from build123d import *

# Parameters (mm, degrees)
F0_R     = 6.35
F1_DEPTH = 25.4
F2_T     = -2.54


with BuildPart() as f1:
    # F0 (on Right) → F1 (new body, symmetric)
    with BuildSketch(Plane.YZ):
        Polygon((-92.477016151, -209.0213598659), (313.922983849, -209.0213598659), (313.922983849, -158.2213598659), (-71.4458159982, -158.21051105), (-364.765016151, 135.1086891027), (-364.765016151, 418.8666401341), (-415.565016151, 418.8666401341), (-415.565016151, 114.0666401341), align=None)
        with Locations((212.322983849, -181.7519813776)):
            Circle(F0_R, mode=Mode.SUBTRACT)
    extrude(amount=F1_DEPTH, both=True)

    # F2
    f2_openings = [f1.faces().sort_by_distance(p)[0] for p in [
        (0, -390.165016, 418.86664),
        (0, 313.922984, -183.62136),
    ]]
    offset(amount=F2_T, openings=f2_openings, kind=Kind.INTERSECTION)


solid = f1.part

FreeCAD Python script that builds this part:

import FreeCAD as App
import Part
import Sketcher
from FreeCAD import Vector
Q = App.Units.Quantity


def faces_at(feature, points):
    """Names of the faces that lie closest to the given points."""
    faces = feature.Shape.Faces
    near = lambda p: min(range(len(faces)), key=lambda i: faces[i].distToShape(Part.Vertex(*p))[0])
    return sorted({f"Face{near(p) + 1}" for p in points})

doc = App.newDocument("Part")
body = doc.addObject("PartDesign::Body", "Body")

sketch1 = body.newObject("Sketcher::SketchObject", "Sketch")
sketch1.AttachmentSupport = (doc.getObject("YZ_Plane"), [""])
sketch1.MapMode = "FlatFace"
sketch1.addGeometry(Part.LineSegment(Vector(-92, -209, 0), Vector(314, -209, 0)), False)
sketch1.addGeometry(Part.LineSegment(Vector(314, -209, 0), Vector(314, -158, 0)), False)
sketch1.addGeometry(Part.LineSegment(Vector(314, -158, 0), Vector(-71, -158, 0)), False)
sketch1.addGeometry(Part.LineSegment(Vector(-71, -158, 0), Vector(-365, 135, 0)), False)
sketch1.addGeometry(Part.LineSegment(Vector(-365, 135, 0), Vector(-365, 419, 0)), False)
sketch1.addGeometry(Part.LineSegment(Vector(-365, 419, 0), Vector(-416, 419, 0)), False)
sketch1.addGeometry(Part.LineSegment(Vector(-416, 419, 0), Vector(-416, 114, 0)), False)
sketch1.addGeometry(Part.LineSegment(Vector(-416, 114, 0), Vector(-92, -209, 0)), False)
sketch1.addGeometry(Part.Circle(Vector(212, -182, 0), Vector(0, 0, 1), 6), False)
sketch1.addConstraint(Sketcher.Constraint("Coincident", 0, 2, 1, 1))
sketch1.addConstraint(Sketcher.Constraint("Coincident", 1, 2, 2, 1))
sketch1.addConstraint(Sketcher.Constraint("Coincident", 2, 2, 3, 1))
sketch1.addConstraint(Sketcher.Constraint("Coincident", 3, 2, 4, 1))
sketch1.addConstraint(Sketcher.Constraint("Coincident", 4, 2, 5, 1))
sketch1.addConstraint(Sketcher.Constraint("Coincident", 5, 2, 6, 1))
sketch1.addConstraint(Sketcher.Constraint("Coincident", 6, 2, 7, 1))
sketch1.addConstraint(Sketcher.Constraint("Coincident", 7, 2, 0, 1))
sketch1.addConstraint(Sketcher.Constraint("Horizontal", 0))
sketch1.addConstraint(Sketcher.Constraint("Vertical", 1))
sketch1.addConstraint(Sketcher.Constraint("Vertical", 4))
sketch1.addConstraint(Sketcher.Constraint("Horizontal", 5))
sketch1.addConstraint(Sketcher.Constraint("Vertical", 6))
sketch1.addConstraint(Sketcher.Constraint("Parallel", 3, 7))
sketch1.addConstraint(Sketcher.Constraint("Equal", 5, 1))
sketch1.addConstraint(Sketcher.Constraint("Diameter", 8, Q("0.5 in")))
sketch1.addConstraint(Sketcher.Constraint("DistanceX", 0, 1, 0, 2, Q("16 in")))
sketch1.addConstraint(Sketcher.Constraint("DistanceX", 5, 2, 5, 1, Q("2 in")))
sketch1.addConstraint(Sketcher.Constraint("DistanceY", 6, 2, 6, 1, Q("12 in")))
sketch1.addConstraint(Sketcher.Constraint("Angle", 3, Q("135 deg")))
sketch1.addConstraint(Sketcher.Constraint("DistanceX", 8, 3, 0, 2, Q("4 in")))
sketch1.addConstraint(Sketcher.Constraint("DistanceX", 3, 2, 8, 3, Q("22.72 in")))
sketch1.addConstraint(Sketcher.Constraint("Distance", 2, Q("15.172 in")))
sketch1.addConstraint(Sketcher.Constraint("DistanceY", 4, 1, 4, 2, 283.757951))
sketch1.addConstraint(Sketcher.Constraint("DistanceY", 8, 3, -1, 1, 181.751981))
sketch1.addConstraint(Sketcher.Constraint("DistanceY", 0, 2, -1, 1, 209.02136))
sketch1.addConstraint(Sketcher.Constraint("DistanceX", -1, 1, 8, 3, 212.322984))
pad1 = body.newObject("PartDesign::Pad", "Pad")
pad1.Profile = sketch1
pad1.Length = Q("2 in")
pad1.Midplane = True
doc.recompute()

thickness = body.newObject("PartDesign::Thickness", "Thickness")
thickness.Base = (pad1, faces_at(pad1, [(0, -390.165, 418.867), (0, 313.923, -183.621)]))
thickness.Value = Q("0.1 in")
thickness.Reversed = True
thickness.Join = "Intersection"

doc.recompute()
